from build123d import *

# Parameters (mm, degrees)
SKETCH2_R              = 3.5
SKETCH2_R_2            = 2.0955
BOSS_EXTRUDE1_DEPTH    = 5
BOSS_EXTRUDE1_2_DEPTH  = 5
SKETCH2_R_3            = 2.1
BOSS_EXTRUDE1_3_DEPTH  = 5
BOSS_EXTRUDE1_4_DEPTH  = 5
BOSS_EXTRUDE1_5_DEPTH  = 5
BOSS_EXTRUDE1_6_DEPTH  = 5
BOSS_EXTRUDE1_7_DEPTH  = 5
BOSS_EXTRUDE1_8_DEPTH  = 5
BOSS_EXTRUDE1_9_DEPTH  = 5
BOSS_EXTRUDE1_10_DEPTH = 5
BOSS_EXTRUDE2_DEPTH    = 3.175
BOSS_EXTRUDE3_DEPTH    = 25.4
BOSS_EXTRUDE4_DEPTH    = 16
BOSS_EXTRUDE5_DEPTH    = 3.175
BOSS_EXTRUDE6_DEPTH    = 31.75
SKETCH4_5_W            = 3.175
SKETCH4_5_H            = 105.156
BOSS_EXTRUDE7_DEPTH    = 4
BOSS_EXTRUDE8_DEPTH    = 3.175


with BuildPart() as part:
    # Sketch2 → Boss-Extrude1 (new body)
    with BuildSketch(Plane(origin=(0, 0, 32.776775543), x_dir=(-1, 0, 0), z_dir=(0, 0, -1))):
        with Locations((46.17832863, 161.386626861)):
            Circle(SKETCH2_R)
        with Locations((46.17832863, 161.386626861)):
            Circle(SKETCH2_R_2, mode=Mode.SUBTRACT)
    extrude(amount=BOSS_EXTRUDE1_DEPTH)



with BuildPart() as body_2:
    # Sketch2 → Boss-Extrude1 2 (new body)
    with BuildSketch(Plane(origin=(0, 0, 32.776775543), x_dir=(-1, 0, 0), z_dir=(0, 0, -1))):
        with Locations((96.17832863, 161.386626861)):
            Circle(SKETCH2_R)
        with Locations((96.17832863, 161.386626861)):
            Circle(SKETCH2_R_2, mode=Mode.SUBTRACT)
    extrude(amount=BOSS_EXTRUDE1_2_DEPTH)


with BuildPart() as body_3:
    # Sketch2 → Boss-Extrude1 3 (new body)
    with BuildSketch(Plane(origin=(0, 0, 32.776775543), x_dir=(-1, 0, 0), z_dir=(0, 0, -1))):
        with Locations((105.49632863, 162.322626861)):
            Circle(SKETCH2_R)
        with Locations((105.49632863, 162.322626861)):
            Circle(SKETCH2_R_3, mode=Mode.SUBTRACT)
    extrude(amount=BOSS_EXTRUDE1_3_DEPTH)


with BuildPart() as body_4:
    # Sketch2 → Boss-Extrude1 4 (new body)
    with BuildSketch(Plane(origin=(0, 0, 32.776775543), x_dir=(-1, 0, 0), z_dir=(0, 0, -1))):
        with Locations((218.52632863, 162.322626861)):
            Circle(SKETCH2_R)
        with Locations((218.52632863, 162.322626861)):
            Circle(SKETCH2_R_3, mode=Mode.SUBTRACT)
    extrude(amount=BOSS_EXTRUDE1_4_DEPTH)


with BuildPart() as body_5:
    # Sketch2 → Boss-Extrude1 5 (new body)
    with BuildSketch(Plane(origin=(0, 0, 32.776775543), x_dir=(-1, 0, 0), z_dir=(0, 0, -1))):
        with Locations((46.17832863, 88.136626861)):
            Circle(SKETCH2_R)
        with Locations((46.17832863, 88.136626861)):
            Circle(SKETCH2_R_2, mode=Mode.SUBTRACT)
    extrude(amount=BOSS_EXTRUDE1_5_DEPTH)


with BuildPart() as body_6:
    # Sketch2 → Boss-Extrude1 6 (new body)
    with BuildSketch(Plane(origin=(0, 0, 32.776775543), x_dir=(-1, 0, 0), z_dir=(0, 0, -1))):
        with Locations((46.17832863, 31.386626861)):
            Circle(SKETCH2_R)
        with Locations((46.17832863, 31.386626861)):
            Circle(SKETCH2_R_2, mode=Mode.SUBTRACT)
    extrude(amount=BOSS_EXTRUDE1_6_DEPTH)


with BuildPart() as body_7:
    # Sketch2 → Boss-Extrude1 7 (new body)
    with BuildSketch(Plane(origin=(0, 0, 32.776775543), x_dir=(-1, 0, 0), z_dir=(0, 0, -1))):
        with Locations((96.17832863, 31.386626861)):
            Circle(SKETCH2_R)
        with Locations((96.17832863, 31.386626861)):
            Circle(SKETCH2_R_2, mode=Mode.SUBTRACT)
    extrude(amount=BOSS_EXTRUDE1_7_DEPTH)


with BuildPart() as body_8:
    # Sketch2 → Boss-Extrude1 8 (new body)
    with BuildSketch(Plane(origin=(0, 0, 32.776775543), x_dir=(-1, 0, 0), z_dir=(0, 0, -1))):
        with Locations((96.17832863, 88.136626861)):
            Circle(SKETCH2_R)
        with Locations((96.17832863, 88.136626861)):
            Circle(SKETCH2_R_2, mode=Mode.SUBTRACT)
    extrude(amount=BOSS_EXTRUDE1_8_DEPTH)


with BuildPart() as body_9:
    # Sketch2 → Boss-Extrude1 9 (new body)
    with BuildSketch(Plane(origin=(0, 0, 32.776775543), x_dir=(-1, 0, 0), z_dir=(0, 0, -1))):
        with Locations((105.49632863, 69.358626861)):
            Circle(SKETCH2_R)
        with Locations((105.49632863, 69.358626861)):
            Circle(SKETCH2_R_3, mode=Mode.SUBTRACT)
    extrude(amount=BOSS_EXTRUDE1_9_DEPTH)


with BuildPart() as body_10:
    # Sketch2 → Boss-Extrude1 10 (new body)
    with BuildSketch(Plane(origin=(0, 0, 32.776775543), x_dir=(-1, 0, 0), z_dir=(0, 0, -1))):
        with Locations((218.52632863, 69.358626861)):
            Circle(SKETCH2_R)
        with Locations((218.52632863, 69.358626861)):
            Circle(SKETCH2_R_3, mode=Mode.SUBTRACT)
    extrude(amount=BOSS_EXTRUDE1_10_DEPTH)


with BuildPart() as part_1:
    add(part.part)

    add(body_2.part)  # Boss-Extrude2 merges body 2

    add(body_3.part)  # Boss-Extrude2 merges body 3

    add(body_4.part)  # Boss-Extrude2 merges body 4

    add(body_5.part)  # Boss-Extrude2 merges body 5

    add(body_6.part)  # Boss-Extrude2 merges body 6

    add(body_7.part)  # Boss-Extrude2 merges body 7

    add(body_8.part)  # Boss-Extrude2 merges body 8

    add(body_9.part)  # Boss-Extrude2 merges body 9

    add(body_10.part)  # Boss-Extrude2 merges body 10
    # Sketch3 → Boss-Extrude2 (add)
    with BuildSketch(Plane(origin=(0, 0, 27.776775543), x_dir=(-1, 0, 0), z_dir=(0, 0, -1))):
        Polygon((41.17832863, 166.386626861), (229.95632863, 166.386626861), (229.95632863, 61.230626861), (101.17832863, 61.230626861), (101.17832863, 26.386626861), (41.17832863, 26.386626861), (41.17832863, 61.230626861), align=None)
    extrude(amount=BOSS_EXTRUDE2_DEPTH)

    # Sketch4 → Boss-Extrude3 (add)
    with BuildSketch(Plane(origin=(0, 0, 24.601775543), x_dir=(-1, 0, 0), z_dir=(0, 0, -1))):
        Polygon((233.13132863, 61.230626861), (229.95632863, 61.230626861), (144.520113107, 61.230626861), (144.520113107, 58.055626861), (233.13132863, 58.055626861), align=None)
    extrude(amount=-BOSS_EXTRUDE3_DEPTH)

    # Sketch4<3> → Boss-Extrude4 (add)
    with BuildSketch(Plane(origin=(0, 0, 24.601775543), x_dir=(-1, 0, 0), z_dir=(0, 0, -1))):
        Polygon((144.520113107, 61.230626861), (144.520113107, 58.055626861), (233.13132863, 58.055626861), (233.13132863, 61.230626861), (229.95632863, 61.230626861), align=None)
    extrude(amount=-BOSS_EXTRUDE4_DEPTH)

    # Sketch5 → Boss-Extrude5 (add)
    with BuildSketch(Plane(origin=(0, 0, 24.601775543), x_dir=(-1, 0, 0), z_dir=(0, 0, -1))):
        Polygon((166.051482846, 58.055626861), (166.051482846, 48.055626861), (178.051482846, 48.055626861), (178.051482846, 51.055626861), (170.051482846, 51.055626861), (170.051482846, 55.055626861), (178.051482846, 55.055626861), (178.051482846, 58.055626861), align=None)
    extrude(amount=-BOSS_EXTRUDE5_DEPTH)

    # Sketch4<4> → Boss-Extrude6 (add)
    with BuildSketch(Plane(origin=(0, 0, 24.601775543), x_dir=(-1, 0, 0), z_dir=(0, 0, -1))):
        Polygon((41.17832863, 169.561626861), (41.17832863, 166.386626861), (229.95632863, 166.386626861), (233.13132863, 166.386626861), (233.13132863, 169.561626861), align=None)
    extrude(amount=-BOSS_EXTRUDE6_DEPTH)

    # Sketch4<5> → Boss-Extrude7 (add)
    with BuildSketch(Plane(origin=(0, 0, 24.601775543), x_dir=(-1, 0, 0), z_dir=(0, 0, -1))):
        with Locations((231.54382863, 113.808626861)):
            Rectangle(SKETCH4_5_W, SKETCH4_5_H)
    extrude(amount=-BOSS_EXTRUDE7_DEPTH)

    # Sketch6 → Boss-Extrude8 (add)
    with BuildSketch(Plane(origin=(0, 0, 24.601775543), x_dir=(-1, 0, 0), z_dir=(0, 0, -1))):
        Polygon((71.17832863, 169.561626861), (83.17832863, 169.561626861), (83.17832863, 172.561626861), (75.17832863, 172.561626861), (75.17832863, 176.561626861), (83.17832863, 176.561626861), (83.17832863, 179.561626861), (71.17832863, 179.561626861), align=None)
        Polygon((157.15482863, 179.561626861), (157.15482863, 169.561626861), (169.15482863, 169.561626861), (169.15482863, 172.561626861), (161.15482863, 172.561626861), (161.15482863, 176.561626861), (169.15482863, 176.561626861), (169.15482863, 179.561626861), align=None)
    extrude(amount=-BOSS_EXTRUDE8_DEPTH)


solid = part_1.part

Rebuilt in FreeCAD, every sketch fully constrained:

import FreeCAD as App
import Part
import Sketcher
from FreeCAD import Vector
Q = App.Units.Quantity

doc = App.newDocument("Part")
body = doc.addObject("PartDesign::Body", "Body")

sketch1 = body.newObject("Sketcher::SketchObject", "Sketch")
sketch1.AttachmentSupport = (doc.getObject("XY_Plane"), [""])
sketch1.MapMode = "FlatFace"
sketch1.AttachmentOffset = App.Placement(Vector(0, 0, 32.776776), App.Rotation())
sketch1.addGeometry([
    Part.Circle(Vector(-46.2, 161.4, 0), Vector(0, 0, 1), 3.5),
    Part.Circle(Vector(-46.2, 161.4, 0), Vector(0, 0, 1), 2.1),
], False)
sketch1.addConstraint([
    Sketcher.Constraint("Coincident", 1, 3, 0, 3),
    Sketcher.Constraint("Diameter", 0, Q("7 mm")),
    Sketcher.Constraint("Diameter", 1, Q("4.191 mm")),
    Sketcher.Constraint("DistanceX", 0, 3, -1, 1, Q("46.178329 mm")),
    Sketcher.Constraint("DistanceY", -1, 1, 0, 3, Q("161.386627 mm")),
])
pad1 = body.newObject("PartDesign::Pad", "Pad")
pad1.Profile = sketch1
pad1.Length = 5
pad1.Reversed = True
body2 = doc.addObject("PartDesign::Body", "Body001")

sketch2 = body2.newObject("Sketcher::SketchObject", "Sketch001")
sketch2.AttachmentSupport = (doc.getObject("XY_Plane001"), [""])
sketch2.MapMode = "FlatFace"
sketch2.AttachmentOffset = App.Placement(Vector(0, 0, 32.776776), App.Rotation())
sketch2.addGeometry([
    Part.Circle(Vector(-96.2, 161.4, 0), Vector(0, 0, 1), 3.5),
    Part.Circle(Vector(-96.2, 161.4, 0), Vector(0, 0, 1), 2.1),
], False)
sketch2.addConstraint([
    Sketcher.Constraint("Coincident", 1, 3, 0, 3),
    Sketcher.Constraint("Diameter", 0, Q("7 mm")),
    Sketcher.Constraint("Diameter", 1, Q("4.191 mm")),
    Sketcher.Constraint("DistanceX", 0, 3, -1, 1, Q("96.178329 mm")),
    Sketcher.Constraint("DistanceY", -1, 1, 0, 3, Q("161.386627 mm")),
])
pad2 = body2.newObject("PartDesign::Pad", "Pad001")
pad2.Profile = sketch2
pad2.Length = 5
pad2.Reversed = True
body3 = doc.addObject("PartDesign::Body", "Body002")

sketch3 = body3.newObject("Sketcher::SketchObject", "Sketch002")
sketch3.AttachmentSupport = (doc.getObject("XY_Plane002"), [""])
sketch3.MapMode = "FlatFace"
sketch3.AttachmentOffset = App.Placement(Vector(0, 0, 32.776776), App.Rotation())
sketch3.addGeometry([
    Part.Circle(Vector(-105.5, 162.3, 0), Vector(0, 0, 1), 3.5),
    Part.Circle(Vector(-105.5, 162.3, 0), Vector(0, 0, 1), 2.1),
], False)
sketch3.addConstraint([
    Sketcher.Constraint("Coincident", 1, 3, 0, 3),
    Sketcher.Constraint("Diameter", 0, Q("7 mm")),
    Sketcher.Constraint("Diameter", 1, Q("4.2 mm")),
    Sketcher.Constraint("DistanceX", 0, 3, -1, 1, Q("105.496329 mm")),
    Sketcher.Constraint("DistanceY", -1, 1, 0, 3, Q("162.322627 mm")),
])
pad3 = body3.newObject("PartDesign::Pad", "Pad002")
pad3.Profile = sketch3
pad3.Length = 5
pad3.Reversed = True
body4 = doc.addObject("PartDesign::Body", "Body003")

sketch4 = body4.newObject("Sketcher::SketchObject", "Sketch003")
sketch4.AttachmentSupport = (doc.getObject("XY_Plane003"), [""])
sketch4.MapMode = "FlatFace"
sketch4.AttachmentOffset = App.Placement(Vector(0, 0, 32.776776), App.Rotation())
sketch4.addGeometry([
    Part.Circle(Vector(-218.5, 162.3, 0), Vector(0, 0, 1), 3.5),
    Part.Circle(Vector(-218.5, 162.3, 0), Vector(0, 0, 1), 2.1),
], False)
sketch4.addConstraint([
    Sketcher.Constraint("Coincident", 1, 3, 0, 3),
    Sketcher.Constraint("Diameter", 0, Q("7 mm")),
    Sketcher.Constraint("Diameter", 1, Q("4.2 mm")),
    Sketcher.Constraint("DistanceX", 0, 3, -1, 1, Q("218.526329 mm")),
    Sketcher.Constraint("DistanceY", -1, 1, 0, 3, Q("162.322627 mm")),
])
pad4 = body4.newObject("PartDesign::Pad", "Pad003")
pad4.Profile = sketch4
pad4.Length = 5
pad4.Reversed = True
body5 = doc.addObject("PartDesign::Body", "Body004")

sketch5 = body5.newObject("Sketcher::SketchObject", "Sketch004")
sketch5.AttachmentSupport = (doc.getObject("XY_Plane004"), [""])
sketch5.MapMode = "FlatFace"
sketch5.AttachmentOffset = App.Placement(Vector(0, 0, 32.776776), App.Rotation())
sketch5.addGeometry([
    Part.Circle(Vector(-46.2, 88.1, 0), Vector(0, 0, 1), 3.5),
    Part.Circle(Vector(-46.2, 88.1, 0), Vector(0, 0, 1), 2.1),
], False)
sketch5.addConstraint([
    Sketcher.Constraint("Coincident", 1, 3, 0, 3),
    Sketcher.Constraint("Diameter", 0, Q("7 mm")),
    Sketcher.Constraint("Diameter", 1, Q("4.191 mm")),
    Sketcher.Constraint("DistanceX", 0, 3, -1, 1, Q("46.178329 mm")),
    Sketcher.Constraint("DistanceY", -1, 1, 0, 3, Q("88.136627 mm")),
])
pad5 = body5.newObject("PartDesign::Pad", "Pad004")
pad5.Profile = sketch5
pad5.Length = 5
pad5.Reversed = True
body6 = doc.addObject("PartDesign::Body", "Body005")

sketch6 = body6.newObject("Sketcher::SketchObject", "Sketch005")
sketch6.AttachmentSupport = (doc.getObject("XY_Plane005"), [""])
sketch6.MapMode = "FlatFace"
sketch6.AttachmentOffset = App.Placement(Vector(0, 0, 32.776776), App.Rotation())
sketch6.addGeometry([
    Part.Circle(Vector(-46.2, 31.4, 0), Vector(0, 0, 1), 3.5),
    Part.Circle(Vector(-46.2, 31.4, 0), Vector(0, 0, 1), 2.1),
], False)
sketch6.addConstraint([
    Sketcher.Constraint("Coincident", 1, 3, 0, 3),
    Sketcher.Constraint("Diameter", 0, Q("7 mm")),
    Sketcher.Constraint("Diameter", 1, Q("4.191 mm")),
    Sketcher.Constraint("DistanceX", 0, 3, -1, 1, Q("46.178329 mm")),
    Sketcher.Constraint("DistanceY", -1, 1, 0, 3, Q("31.386627 mm")),
])
pad6 = body6.newObject("PartDesign::Pad", "Pad005")
pad6.Profile = sketch6
pad6.Length = 5
pad6.Reversed = True
body7 = doc.addObject("PartDesign::Body", "Body006")

sketch7 = body7.newObject("Sketcher::SketchObject", "Sketch006")
sketch7.AttachmentSupport = (doc.getObject("XY_Plane006"), [""])
sketch7.MapMode = "FlatFace"
sketch7.AttachmentOffset = App.Placement(Vector(0, 0, 32.776776), App.Rotation())
sketch7.addGeometry([
    Part.Circle(Vector(-96.2, 31.4, 0), Vector(0, 0, 1), 3.5),
    Part.Circle(Vector(-96.2, 31.4, 0), Vector(0, 0, 1), 2.1),
], False)
sketch7.addConstraint([
    Sketcher.Constraint("Coincident", 1, 3, 0, 3),
    Sketcher.Constraint("Diameter", 0, Q("7 mm")),
    Sketcher.Constraint("Diameter", 1, Q("4.191 mm")),
    Sketcher.Constraint("DistanceX", 0, 3, -1, 1, Q("96.178329 mm")),
    Sketcher.Constraint("DistanceY", -1, 1, 0, 3, Q("31.386627 mm")),
])
pad7 = body7.newObject("PartDesign::Pad", "Pad006")
pad7.Profile = sketch7
pad7.Length = 5
pad7.Reversed = True
body8 = doc.addObject("PartDesign::Body", "Body007")

sketch8 = body8.newObject("Sketcher::SketchObject", "Sketch007")
sketch8.AttachmentSupport = (doc.getObject("XY_Plane007"), [""])
sketch8.MapMode = "FlatFace"
sketch8.AttachmentOffset = App.Placement(Vector(0, 0, 32.776776), App.Rotation())
sketch8.addGeometry([
    Part.Circle(Vector(-96.2, 88.1, 0), Vector(0, 0, 1), 3.5),
    Part.Circle(Vector(-96.2, 88.1, 0), Vector(0, 0, 1), 2.1),
], False)
sketch8.addConstraint([
    Sketcher.Constraint("Coincident", 1, 3, 0, 3),
    Sketcher.Constraint("Diameter", 0, Q("7 mm")),
    Sketcher.Constraint("Diameter", 1, Q("4.191 mm")),
    Sketcher.Constraint("DistanceX", 0, 3, -1, 1, Q("96.178329 mm")),
    Sketcher.Constraint("DistanceY", -1, 1, 0, 3, Q("88.136627 mm")),
])
pad8 = body8.newObject("PartDesign::Pad", "Pad007")
pad8.Profile = sketch8
pad8.Length = 5
pad8.Reversed = True
body9 = doc.addObject("PartDesign::Body", "Body008")

sketch9 = body9.newObject("Sketcher::SketchObject", "Sketch008")
sketch9.AttachmentSupport = (doc.getObject("XY_Plane008"), [""])
sketch9.MapMode = "FlatFace"
sketch9.AttachmentOffset = App.Placement(Vector(0, 0, 32.776776), App.Rotation())
sketch9.addGeometry([
    Part.Circle(Vector(-105.5, 69.4, 0), Vector(0, 0, 1), 3.5),
    Part.Circle(Vector(-105.5, 69.4, 0), Vector(0, 0, 1), 2.1),
], False)
sketch9.addConstraint([
    Sketcher.Constraint("Coincident", 1, 3, 0, 3),
    Sketcher.Constraint("Diameter", 0, Q("7 mm")),
    Sketcher.Constraint("Diameter", 1, Q("4.2 mm")),
    Sketcher.Constraint("DistanceX", 0, 3, -1, 1, Q("105.496329 mm")),
    Sketcher.Constraint("DistanceY", -1, 1, 0, 3, Q("69.358627 mm")),
])
pad9 = body9.newObject("PartDesign::Pad", "Pad008")
pad9.Profile = sketch9
pad9.Length = 5
pad9.Reversed = True
body10 = doc.addObject("PartDesign::Body", "Body009")

sketch10 = body10.newObject("Sketcher::SketchObject", "Sketch009")
sketch10.AttachmentSupport = (doc.getObject("XY_Plane009"), [""])
sketch10.MapMode = "FlatFace"
sketch10.AttachmentOffset = App.Placement(Vector(0, 0, 32.776776), App.Rotation())
sketch10.addGeometry([
    Part.Circle(Vector(-218.5, 69.4, 0), Vector(0, 0, 1), 3.5),
    Part.Circle(Vector(-218.5, 69.4, 0), Vector(0, 0, 1), 2.1),
], False)
sketch10.addConstraint([
    Sketcher.Constraint("Coincident", 1, 3, 0, 3),
    Sketcher.Constraint("Diameter", 0, Q("7 mm")),
    Sketcher.Constraint("Diameter", 1, Q("4.2 mm")),
    Sketcher.Constraint("DistanceX", 0, 3, -1, 1, Q("218.526329 mm")),
    Sketcher.Constraint("DistanceY", -1, 1, 0, 3, Q("69.358627 mm")),
])
pad10 = body10.newObject("PartDesign::Pad", "Pad009")
pad10.Profile = sketch10
pad10.Length = 5
pad10.Reversed = True
body.AllowCompound = True
doc.recompute()

boolean = body.newObject("PartDesign::Boolean", "Boolean")
boolean.Type = "Fuse"
boolean.addObjects([body2])
doc.recompute()

boolean2 = body.newObject("PartDesign::Boolean", "Boolean001")
boolean2.Type = "Fuse"
boolean2.addObjects([body3])
doc.recompute()

boolean3 = body.newObject("PartDesign::Boolean", "Boolean002")
boolean3.Type = "Fuse"
boolean3.addObjects([body4])
doc.recompute()

boolean4 = body.newObject("PartDesign::Boolean", "Boolean003")
boolean4.Type = "Fuse"
boolean4.addObjects([body5])
doc.recompute()

boolean5 = body.newObject("PartDesign::Boolean", "Boolean004")
boolean5.Type = "Fuse"
boolean5.addObjects([body6])
doc.recompute()

boolean6 = body.newObject("PartDesign::Boolean", "Boolean005")
boolean6.Type = "Fuse"
boolean6.addObjects([body7])
doc.recompute()

boolean7 = body.newObject("PartDesign::Boolean", "Boolean006")
boolean7.Type = "Fuse"
boolean7.addObjects([body8])
doc.recompute()

boolean8 = body.newObject("PartDesign::Boolean", "Boolean007")
boolean8.Type = "Fuse"
boolean8.addObjects([body9])
doc.recompute()

boolean9 = body.newObject("PartDesign::Boolean", "Boolean008")
boolean9.Type = "Fuse"
boolean9.addObjects([body10])

sketch11 = body.newObject("Sketcher::SketchObject", "Sketch010")
sketch11.AttachmentSupport = (doc.getObject("XY_Plane"), [""])
sketch11.MapMode = "FlatFace"
sketch11.AttachmentOffset = App.Placement(Vector(0, 0, 27.776776), App.Rotation())
sketch11.addGeometry([
    Part.LineSegment(Vector(-230, 166, 0), Vector(-41, 166, 0)),
    Part.LineSegment(Vector(-41, 166, 0), Vector(-41, 26, 0)),
    Part.LineSegment(Vector(-41, 26, 0), Vector(-101, 26, 0)),
    Part.LineSegment(Vector(-101, 26, 0), Vector(-101, 61, 0)),
    Part.LineSegment(Vector(-101, 61, 0), Vector(-230, 61, 0)),
    Part.LineSegment(Vector(-230, 61, 0), Vector(-230, 166, 0)),
], False)
sketch11.addConstraint([
    Sketcher.Constraint("Coincident", 0, 2, 1, 1),
    Sketcher.Constraint("Coincident", 1, 2, 2, 1),
    Sketcher.Constraint("Coincident", 2, 2, 3, 1),
    Sketcher.Constraint("Coincident", 3, 2, 4, 1),
    Sketcher.Constraint("Coincident", 4, 2, 5, 1),
    Sketcher.Constraint("Coincident", 5, 2, 0, 1),
    Sketcher.Constraint("Horizontal", 0),
    Sketcher.Constraint("Vertical", 1),
    Sketcher.Constraint("Horizontal", 2),
    Sketcher.Constraint("Vertical", 3),
    Sketcher.Constraint("Horizontal", 4),
    Sketcher.Constraint("Vertical", 5),
    Sketcher.Constraint("DistanceX", 2, 2, 2, 1, Q("60 mm")),
    Sketcher.Constraint("DistanceY", 1, 2, 1, 1, Q("140 mm")),
    Sketcher.Constraint("DistanceX", 0, 1, 0, 2, Q("188.778 mm")),
    Sketcher.Constraint("DistanceY", 3, 1, 3, 2, Q("34.844 mm")),
    Sketcher.Constraint("DistanceX", 0, 2, -1, 1, Q("41.178329 mm")),
    Sketcher.Constraint("DistanceY", -1, 1, 0, 2, Q("166.386627 mm")),
])
pad11 = body.newObject("PartDesign::Pad", "Pad010")
pad11.Profile = sketch11
pad11.Length = 3.175
pad11.Reversed = True

sketch12 = body.newObject("Sketcher::SketchObject", "Sketch011")
sketch12.AttachmentSupport = (doc.getObject("XY_Plane"), [""])
sketch12.MapMode = "FlatFace"
sketch12.AttachmentOffset = App.Placement(Vector(0, 0, 24.601776), App.Rotation())
sketch12.addGeometry([
    Part.LineSegment(Vector(-233.1, 61.2, 0), Vector(-144.5, 61.2, 0)),
    Part.LineSegment(Vector(-144.5, 61.2, 0), Vector(-144.5, 58.1, 0)),
    Part.LineSegment(Vector(-144.5, 58.1, 0), Vector(-233.1, 58.1, 0)),
    Part.LineSegment(Vector(-233.1, 58.1, 0), Vector(-233.1, 61.2, 0)),
], False)
sketch12.addConstraint([
    Sketcher.Constraint("Coincident", 0, 2, 1, 1),
    Sketcher.Constraint("Coincident", 1, 2, 2, 1),
    Sketcher.Constraint("Coincident", 2, 2, 3, 1),
    Sketcher.Constraint("Coincident", 3, 2, 0, 1),
    Sketcher.Constraint("Horizontal", 0),
    Sketcher.Constraint("Vertical", 1),
    Sketcher.Constraint("Horizontal", 2),
    Sketcher.Constraint("Vertical", 3),
    Sketcher.Constraint("DistanceY", 1, 2, 1, 1, Q("3.175 mm")),
    Sketcher.Constraint("DistanceX", 0, 1, 0, 2, Q("88.611216 mm")),
    Sketcher.Constraint("DistanceX", 2, 2, -1, 1, Q("233.131329 mm")),
    Sketcher.Constraint("DistanceY", -1, 1, 0, 2, Q("61.230627 mm")),
])
pad12 = body.newObject("PartDesign::Pad", "Pad011")
pad12.Profile = sketch12
pad12.Length = 25.4

sketch13 = body.newObject("Sketcher::SketchObject", "Sketch012")
sketch13.AttachmentSupport = (doc.getObject("XY_Plane"), [""])
sketch13.MapMode = "FlatFace"
sketch13.AttachmentOffset = App.Placement(Vector(0, 0, 24.601776), App.Rotation())
sketch13.addGeometry([
    Part.LineSegment(Vector(-144.5, 61.2, 0), Vector(-144.5, 58.1, 0)),
    Part.LineSegment(Vector(-144.5, 58.1, 0), Vector(-233.1, 58.1, 0)),
    Part.LineSegment(Vector(-233.1, 58.1, 0), Vector(-233.1, 61.2, 0)),
    Part.LineSegment(Vector(-233.1, 61.2, 0), Vector(-144.5, 61.2, 0)),
], False)
sketch13.addConstraint([
    Sketcher.Constraint("Coincident", 0, 2, 1, 1),
    Sketcher.Constraint("Coincident", 1, 2, 2, 1),
    Sketcher.Constraint("Coincident", 2, 2, 3, 1),
    Sketcher.Constraint("Coincident", 3, 2, 0, 1),
    Sketcher.Constraint("Vertical", 0),
    Sketcher.Constraint("Horizontal", 1),
    Sketcher.Constraint("Vertical", 2),
    Sketcher.Constraint("Horizontal", 3),
    Sketcher.Constraint("DistanceY", 0, 2, 0, 1, Q("3.175 mm")),
    Sketcher.Constraint("DistanceX", 1, 2, 1, 1, Q("88.611216 mm")),
    Sketcher.Constraint("DistanceX", 1, 2, -1, 1, Q("233.131329 mm")),
    Sketcher.Constraint("DistanceY", -1, 1, 0, 2, Q("58.055627 mm")),
])
pad13 = body.newObject("PartDesign::Pad", "Pad012")
pad13.Profile = sketch13
pad13.Length = 16

sketch14 = body.newObject("Sketcher::SketchObject", "Sketch013")
sketch14.AttachmentSupport = (doc.getObject("XY_Plane"), [""])
sketch14.MapMode = "FlatFace"
sketch14.AttachmentOffset = App.Placement(Vector(0, 0, 24.601776), App.Rotation())
sketch14.addGeometry([
    Part.LineSegment(Vector(-166.1, 58.1, 0), Vector(-166.1, 48.1, 0)),
    Part.LineSegment(Vector(-166.1, 48.1, 0), Vector(-178.1, 48.1, 0)),
    Part.LineSegment(Vector(-178.1, 48.1, 0), Vector(-178.1, 51.1, 0)),
    Part.LineSegment(Vector(-178.1, 51.1, 0), Vector(-170.1, 51.1, 0)),
    Part.LineSegment(Vector(-170.1, 51.1, 0), Vector(-170.1, 55.1, 0)),
    Part.LineSegment(Vector(-170.1, 55.1, 0), Vector(-178.1, 55.1, 0)),
    Part.LineSegment(Vector(-178.1, 55.1, 0), Vector(-178.1, 58.1, 0)),
    Part.LineSegment(Vector(-178.1, 58.1, 0), Vector(-166.1, 58.1, 0)),
], False)
sketch14.addConstraint([
    Sketcher.Constraint("Coincident", 0, 2, 1, 1),
    Sketcher.Constraint("Coincident", 1, 2, 2, 1),
    Sketcher.Constraint("Coincident", 2, 2, 3, 1),
    Sketcher.Constraint("Coincident", 3, 2, 4, 1),
    Sketcher.Constraint("Coincident", 4, 2, 5, 1),
    Sketcher.Constraint("Coincident", 5, 2, 6, 1),
    Sketcher.Constraint("Coincident", 6, 2, 7, 1),
    Sketcher.Constraint("Coincident", 7, 2, 0, 1),
    Sketcher.Constraint("Vertical", 0),
    Sketcher.Constraint("Horizontal", 1),
    Sketcher.Constraint("Vertical", 2),
    Sketcher.Constraint("Horizontal", 3),
    Sketcher.Constraint("Vertical", 4),
    Sketcher.Constraint("Horizontal", 5),
    Sketcher.Constraint("Vertical", 6),
    Sketcher.Constraint("Horizontal", 7),
    Sketcher.Constraint("Vertical", 2, 2, 5, 2),
    Sketcher.Constraint("Equal", 2, 6),
    Sketcher.Constraint("DistanceX", 1, 2, 1, 1, Q("12 mm")),
    Sketcher.Constraint("DistanceX", 3, 1, 3, 2, Q("8 mm")),
    Sketcher.Constraint("DistanceY", 0, 2, 0, 1, Q("10 mm")),
    Sketcher.Constraint("DistanceY", 2, 1, 2, 2, Q("3 mm")),
    Sketcher.Constraint("DistanceX", 0, 2, -1, 1, Q("166.051483 mm")),
    Sketcher.Constraint("DistanceY", -1, 1, 0, 2, Q("48.055627 mm")),
])
pad14 = body.newObject("PartDesign::Pad", "Pad013")
pad14.Profile = sketch14
pad14.Length = 3.175

sketch15 = body.newObject("Sketcher::SketchObject", "Sketch014")
sketch15.AttachmentSupport = (doc.getObject("XY_Plane"), [""])
sketch15.MapMode = "FlatFace"
sketch15.AttachmentOffset = App.Placement(Vector(0, 0, 24.601776), App.Rotation())
sketch15.addGeometry([
    Part.LineSegment(Vector(-41.2, 169.6, 0), Vector(-41.2, 166.4, 0)),
    Part.LineSegment(Vector(-41.2, 166.4, 0), Vector(-233.1, 166.4, 0)),
    Part.LineSegment(Vector(-233.1, 166.4, 0), Vector(-233.1, 169.6, 0)),
    Part.LineSegment(Vector(-233.1, 169.6, 0), Vector(-41.2, 169.6, 0)),
], False)
sketch15.addConstraint([
    Sketcher.Constraint("Coincident", 0, 2, 1, 1),
    Sketcher.Constraint("Coincident", 1, 2, 2, 1),
    Sketcher.Constraint("Coincident", 2, 2, 3, 1),
    Sketcher.Constraint("Coincident", 3, 2, 0, 1),
    Sketcher.Constraint("Vertical", 0),
    Sketcher.Constraint("Horizontal", 1),
    Sketcher.Constraint("Vertical", 2),
    Sketcher.Constraint("Horizontal", 3),
    Sketcher.Constraint("DistanceX", 1, 2, 1, 1, Q("191.953 mm")),
    Sketcher.Constraint("DistanceY", 0, 2, 0, 1, Q("3.175 mm")),
    Sketcher.Constraint("DistanceX", 0, 2, -1, 1, Q("41.178329 mm")),
    Sketcher.Constraint("DistanceY", -1, 1, 0, 2, Q("166.386627 mm")),
])
pad15 = body.newObject("PartDesign::Pad", "Pad014")
pad15.Profile = sketch15
pad15.Length = 31.75

sketch16 = body.newObject("Sketcher::SketchObject", "Sketch015")
sketch16.AttachmentSupport = (doc.getObject("XY_Plane"), [""])
sketch16.MapMode = "FlatFace"
sketch16.AttachmentOffset = App.Placement(Vector(0, 0, 24.601776), App.Rotation())
sketch16.addGeometry([
    Part.LineSegment(Vector(-230, 166.4, 0), Vector(-230, 61.2, 0)),
    Part.LineSegment(Vector(-230, 61.2, 0), Vector(-233.1, 61.2, 0)),
    Part.LineSegment(Vector(-233.1, 61.2, 0), Vector(-233.1, 166.4, 0)),
    Part.LineSegment(Vector(-233.1, 166.4, 0), Vector(-230, 166.4, 0)),
], False)
sketch16.addConstraint([
    Sketcher.Constraint("Coincident", 0, 2, 1, 1),
    Sketcher.Constraint("Coincident", 1, 2, 2, 1),
    Sketcher.Constraint("Coincident", 2, 2, 3, 1),
    Sketcher.Constraint("Coincident", 3, 2, 0, 1),
    Sketcher.Constraint("Vertical", 0),
    Sketcher.Constraint("Horizontal", 1),
    Sketcher.Constraint("Vertical", 2),
    Sketcher.Constraint("Horizontal", 3),
    Sketcher.Constraint("DistanceX", 1, 2, 1, 1, Q("3.175 mm")),
    Sketcher.Constraint("DistanceY", 0, 2, 0, 1, Q("105.156 mm")),
    Sketcher.Constraint("DistanceX", 0, 2, -1, 1, Q("229.956329 mm")),
    Sketcher.Constraint("DistanceY", -1, 1, 0, 2, Q("61.230627 mm")),
])
pad16 = body.newObject("PartDesign::Pad", "Pad015")
pad16.Profile = sketch16
pad16.Length = 4

sketch17 = body.newObject("Sketcher::SketchObject", "Sketch016")
sketch17.AttachmentSupport = (doc.getObject("XY_Plane"), [""])
sketch17.MapMode = "FlatFace"
sketch17.AttachmentOffset = App.Placement(Vector(0, 0, 24.601776), App.Rotation())
sketch17.addGeometry([
    Part.LineSegment(Vector(-71.2, 169.6, 0), Vector(-83.2, 169.6, 0)),
    Part.LineSegment(Vector(-83.2, 169.6, 0), Vector(-83.2, 172.6, 0)),
    Part.LineSegment(Vector(-83.2, 172.6, 0), Vector(-75.2, 172.6, 0)),
    Part.LineSegment(Vector(-75.2, 172.6, 0), Vector(-75.2, 176.6, 0)),
    Part.LineSegment(Vector(-75.2, 176.6, 0), Vector(-83.2, 176.6, 0)),
    Part.LineSegment(Vector(-83.2, 176.6, 0), Vector(-83.2, 179.6, 0)),
    Part.LineSegment(Vector(-83.2, 179.6, 0), Vector(-71.2, 179.6, 0)),
    Part.LineSegment(Vector(-71.2, 179.6, 0), Vector(-71.2, 169.6, 0)),
    Part.LineSegment(Vector(-157.2, 179.6, 0), Vector(-157.2, 169.6, 0)),
    Part.LineSegment(Vector(-157.2, 169.6, 0), Vector(-169.2, 169.6, 0)),
    Part.LineSegment(Vector(-169.2, 169.6, 0), Vector(-169.2, 172.6, 0)),
    Part.LineSegment(Vector(-169.2, 172.6, 0), Vector(-161.2, 172.6, 0)),
    Part.LineSegment(Vector(-161.2, 172.6, 0), Vector(-161.2, 176.6, 0)),
    Part.LineSegment(Vector(-161.2, 176.6, 0), Vector(-169.2, 176.6, 0)),
    Part.LineSegment(Vector(-169.2, 176.6, 0), Vector(-169.2, 179.6, 0)),
    Part.LineSegment(Vector(-169.2, 179.6, 0), Vector(-157.2, 179.6, 0)),
], False)
sketch17.addConstraint([
    Sketcher.Constraint("Coincident", 0, 2, 1, 1),
    Sketcher.Constraint("Coincident", 1, 2, 2, 1),
    Sketcher.Constraint("Coincident", 2, 2, 3, 1),
    Sketcher.Constraint("Coincident", 3, 2, 4, 1),
    Sketcher.Constraint("Coincident", 4, 2, 5, 1),
    Sketcher.Constraint("Coincident", 5, 2, 6, 1),
    Sketcher.Constraint("Coincident", 6, 2, 7, 1),
    Sketcher.Constraint("Coincident", 7, 2, 0, 1),
    Sketcher.Constraint("Coincident", 8, 2, 9, 1),
    Sketcher.Constraint("Coincident", 9, 2, 10, 1),
    Sketcher.Constraint("Coincident", 10, 2, 11, 1),
    Sketcher.Constraint("Coincident", 11, 2, 12, 1),
    Sketcher.Constraint("Coincident", 12, 2, 13, 1),
    Sketcher.Constraint("Coincident", 13, 2, 14, 1),
    Sketcher.Constraint("Coincident", 14, 2, 15, 1),
    Sketcher.Constraint("Coincident", 15, 2, 8, 1),
    Sketcher.Constraint("Horizontal", 0),
    Sketcher.Constraint("Vertical", 1),
    Sketcher.Constraint("Horizontal", 2),
    Sketcher.Constraint("Vertical", 3),
    Sketcher.Constraint("Horizontal", 4),
    Sketcher.Constraint("Vertical", 5),
    Sketcher.Constraint("Horizontal", 6),
    Sketcher.Constraint("Vertical", 7),
    Sketcher.Constraint("Vertical", 8),
    Sketcher.Constraint("Horizontal", 9),
    Sketcher.Constraint("Vertical", 10),
    Sketcher.Constraint("Horizontal", 11),
    Sketcher.Constraint("Vertical", 12),
    Sketcher.Constraint("Horizontal", 13),
    Sketcher.Constraint("Vertical", 14),
    Sketcher.Constraint("Horizontal", 15),
    Sketcher.Constraint("Horizontal", 7, 2, 8, 2),
    Sketcher.Constraint("Horizontal", 2, 2, 10, 2),
    Sketcher.Constraint("Horizontal", 4, 2, 12, 2),
    Sketcher.Constraint("Horizontal", 6, 2, 14, 2),
    Sketcher.Constraint("Vertical", 1, 2, 4, 2),
    Sketcher.Constraint("Vertical", 10, 2, 13, 2),
    Sketcher.Constraint("Equal", 6, 9),
    Sketcher.Constraint("Equal", 4, 11),
    Sketcher.Constraint("Equal", 1, 5),
    Sketcher.Constraint("DistanceX", 0, 2, 0, 1, Q("12 mm")),
    Sketcher.Constraint("DistanceX", 2, 1, 2, 2, Q("8 mm")),
    Sketcher.Constraint("DistanceY", 1, 1, 1, 2, Q("3 mm")),
    Sketcher.Constraint("DistanceY", 3, 1, 3, 2, Q("4 mm")),
    Sketcher.Constraint("DistanceX", 8, 2, 0, 2, Q("73.9765 mm")),
    Sketcher.Constraint("DistanceX", 0, 2, -1, 1, Q("83.178329 mm")),
    Sketcher.Constraint("DistanceY", -1, 1, 0, 2, Q("169.561627 mm")),
])
pad17 = body.newObject("PartDesign::Pad", "Pad016")
pad17.Profile = sketch17
pad17.Length = 3.175

doc.recompute()
